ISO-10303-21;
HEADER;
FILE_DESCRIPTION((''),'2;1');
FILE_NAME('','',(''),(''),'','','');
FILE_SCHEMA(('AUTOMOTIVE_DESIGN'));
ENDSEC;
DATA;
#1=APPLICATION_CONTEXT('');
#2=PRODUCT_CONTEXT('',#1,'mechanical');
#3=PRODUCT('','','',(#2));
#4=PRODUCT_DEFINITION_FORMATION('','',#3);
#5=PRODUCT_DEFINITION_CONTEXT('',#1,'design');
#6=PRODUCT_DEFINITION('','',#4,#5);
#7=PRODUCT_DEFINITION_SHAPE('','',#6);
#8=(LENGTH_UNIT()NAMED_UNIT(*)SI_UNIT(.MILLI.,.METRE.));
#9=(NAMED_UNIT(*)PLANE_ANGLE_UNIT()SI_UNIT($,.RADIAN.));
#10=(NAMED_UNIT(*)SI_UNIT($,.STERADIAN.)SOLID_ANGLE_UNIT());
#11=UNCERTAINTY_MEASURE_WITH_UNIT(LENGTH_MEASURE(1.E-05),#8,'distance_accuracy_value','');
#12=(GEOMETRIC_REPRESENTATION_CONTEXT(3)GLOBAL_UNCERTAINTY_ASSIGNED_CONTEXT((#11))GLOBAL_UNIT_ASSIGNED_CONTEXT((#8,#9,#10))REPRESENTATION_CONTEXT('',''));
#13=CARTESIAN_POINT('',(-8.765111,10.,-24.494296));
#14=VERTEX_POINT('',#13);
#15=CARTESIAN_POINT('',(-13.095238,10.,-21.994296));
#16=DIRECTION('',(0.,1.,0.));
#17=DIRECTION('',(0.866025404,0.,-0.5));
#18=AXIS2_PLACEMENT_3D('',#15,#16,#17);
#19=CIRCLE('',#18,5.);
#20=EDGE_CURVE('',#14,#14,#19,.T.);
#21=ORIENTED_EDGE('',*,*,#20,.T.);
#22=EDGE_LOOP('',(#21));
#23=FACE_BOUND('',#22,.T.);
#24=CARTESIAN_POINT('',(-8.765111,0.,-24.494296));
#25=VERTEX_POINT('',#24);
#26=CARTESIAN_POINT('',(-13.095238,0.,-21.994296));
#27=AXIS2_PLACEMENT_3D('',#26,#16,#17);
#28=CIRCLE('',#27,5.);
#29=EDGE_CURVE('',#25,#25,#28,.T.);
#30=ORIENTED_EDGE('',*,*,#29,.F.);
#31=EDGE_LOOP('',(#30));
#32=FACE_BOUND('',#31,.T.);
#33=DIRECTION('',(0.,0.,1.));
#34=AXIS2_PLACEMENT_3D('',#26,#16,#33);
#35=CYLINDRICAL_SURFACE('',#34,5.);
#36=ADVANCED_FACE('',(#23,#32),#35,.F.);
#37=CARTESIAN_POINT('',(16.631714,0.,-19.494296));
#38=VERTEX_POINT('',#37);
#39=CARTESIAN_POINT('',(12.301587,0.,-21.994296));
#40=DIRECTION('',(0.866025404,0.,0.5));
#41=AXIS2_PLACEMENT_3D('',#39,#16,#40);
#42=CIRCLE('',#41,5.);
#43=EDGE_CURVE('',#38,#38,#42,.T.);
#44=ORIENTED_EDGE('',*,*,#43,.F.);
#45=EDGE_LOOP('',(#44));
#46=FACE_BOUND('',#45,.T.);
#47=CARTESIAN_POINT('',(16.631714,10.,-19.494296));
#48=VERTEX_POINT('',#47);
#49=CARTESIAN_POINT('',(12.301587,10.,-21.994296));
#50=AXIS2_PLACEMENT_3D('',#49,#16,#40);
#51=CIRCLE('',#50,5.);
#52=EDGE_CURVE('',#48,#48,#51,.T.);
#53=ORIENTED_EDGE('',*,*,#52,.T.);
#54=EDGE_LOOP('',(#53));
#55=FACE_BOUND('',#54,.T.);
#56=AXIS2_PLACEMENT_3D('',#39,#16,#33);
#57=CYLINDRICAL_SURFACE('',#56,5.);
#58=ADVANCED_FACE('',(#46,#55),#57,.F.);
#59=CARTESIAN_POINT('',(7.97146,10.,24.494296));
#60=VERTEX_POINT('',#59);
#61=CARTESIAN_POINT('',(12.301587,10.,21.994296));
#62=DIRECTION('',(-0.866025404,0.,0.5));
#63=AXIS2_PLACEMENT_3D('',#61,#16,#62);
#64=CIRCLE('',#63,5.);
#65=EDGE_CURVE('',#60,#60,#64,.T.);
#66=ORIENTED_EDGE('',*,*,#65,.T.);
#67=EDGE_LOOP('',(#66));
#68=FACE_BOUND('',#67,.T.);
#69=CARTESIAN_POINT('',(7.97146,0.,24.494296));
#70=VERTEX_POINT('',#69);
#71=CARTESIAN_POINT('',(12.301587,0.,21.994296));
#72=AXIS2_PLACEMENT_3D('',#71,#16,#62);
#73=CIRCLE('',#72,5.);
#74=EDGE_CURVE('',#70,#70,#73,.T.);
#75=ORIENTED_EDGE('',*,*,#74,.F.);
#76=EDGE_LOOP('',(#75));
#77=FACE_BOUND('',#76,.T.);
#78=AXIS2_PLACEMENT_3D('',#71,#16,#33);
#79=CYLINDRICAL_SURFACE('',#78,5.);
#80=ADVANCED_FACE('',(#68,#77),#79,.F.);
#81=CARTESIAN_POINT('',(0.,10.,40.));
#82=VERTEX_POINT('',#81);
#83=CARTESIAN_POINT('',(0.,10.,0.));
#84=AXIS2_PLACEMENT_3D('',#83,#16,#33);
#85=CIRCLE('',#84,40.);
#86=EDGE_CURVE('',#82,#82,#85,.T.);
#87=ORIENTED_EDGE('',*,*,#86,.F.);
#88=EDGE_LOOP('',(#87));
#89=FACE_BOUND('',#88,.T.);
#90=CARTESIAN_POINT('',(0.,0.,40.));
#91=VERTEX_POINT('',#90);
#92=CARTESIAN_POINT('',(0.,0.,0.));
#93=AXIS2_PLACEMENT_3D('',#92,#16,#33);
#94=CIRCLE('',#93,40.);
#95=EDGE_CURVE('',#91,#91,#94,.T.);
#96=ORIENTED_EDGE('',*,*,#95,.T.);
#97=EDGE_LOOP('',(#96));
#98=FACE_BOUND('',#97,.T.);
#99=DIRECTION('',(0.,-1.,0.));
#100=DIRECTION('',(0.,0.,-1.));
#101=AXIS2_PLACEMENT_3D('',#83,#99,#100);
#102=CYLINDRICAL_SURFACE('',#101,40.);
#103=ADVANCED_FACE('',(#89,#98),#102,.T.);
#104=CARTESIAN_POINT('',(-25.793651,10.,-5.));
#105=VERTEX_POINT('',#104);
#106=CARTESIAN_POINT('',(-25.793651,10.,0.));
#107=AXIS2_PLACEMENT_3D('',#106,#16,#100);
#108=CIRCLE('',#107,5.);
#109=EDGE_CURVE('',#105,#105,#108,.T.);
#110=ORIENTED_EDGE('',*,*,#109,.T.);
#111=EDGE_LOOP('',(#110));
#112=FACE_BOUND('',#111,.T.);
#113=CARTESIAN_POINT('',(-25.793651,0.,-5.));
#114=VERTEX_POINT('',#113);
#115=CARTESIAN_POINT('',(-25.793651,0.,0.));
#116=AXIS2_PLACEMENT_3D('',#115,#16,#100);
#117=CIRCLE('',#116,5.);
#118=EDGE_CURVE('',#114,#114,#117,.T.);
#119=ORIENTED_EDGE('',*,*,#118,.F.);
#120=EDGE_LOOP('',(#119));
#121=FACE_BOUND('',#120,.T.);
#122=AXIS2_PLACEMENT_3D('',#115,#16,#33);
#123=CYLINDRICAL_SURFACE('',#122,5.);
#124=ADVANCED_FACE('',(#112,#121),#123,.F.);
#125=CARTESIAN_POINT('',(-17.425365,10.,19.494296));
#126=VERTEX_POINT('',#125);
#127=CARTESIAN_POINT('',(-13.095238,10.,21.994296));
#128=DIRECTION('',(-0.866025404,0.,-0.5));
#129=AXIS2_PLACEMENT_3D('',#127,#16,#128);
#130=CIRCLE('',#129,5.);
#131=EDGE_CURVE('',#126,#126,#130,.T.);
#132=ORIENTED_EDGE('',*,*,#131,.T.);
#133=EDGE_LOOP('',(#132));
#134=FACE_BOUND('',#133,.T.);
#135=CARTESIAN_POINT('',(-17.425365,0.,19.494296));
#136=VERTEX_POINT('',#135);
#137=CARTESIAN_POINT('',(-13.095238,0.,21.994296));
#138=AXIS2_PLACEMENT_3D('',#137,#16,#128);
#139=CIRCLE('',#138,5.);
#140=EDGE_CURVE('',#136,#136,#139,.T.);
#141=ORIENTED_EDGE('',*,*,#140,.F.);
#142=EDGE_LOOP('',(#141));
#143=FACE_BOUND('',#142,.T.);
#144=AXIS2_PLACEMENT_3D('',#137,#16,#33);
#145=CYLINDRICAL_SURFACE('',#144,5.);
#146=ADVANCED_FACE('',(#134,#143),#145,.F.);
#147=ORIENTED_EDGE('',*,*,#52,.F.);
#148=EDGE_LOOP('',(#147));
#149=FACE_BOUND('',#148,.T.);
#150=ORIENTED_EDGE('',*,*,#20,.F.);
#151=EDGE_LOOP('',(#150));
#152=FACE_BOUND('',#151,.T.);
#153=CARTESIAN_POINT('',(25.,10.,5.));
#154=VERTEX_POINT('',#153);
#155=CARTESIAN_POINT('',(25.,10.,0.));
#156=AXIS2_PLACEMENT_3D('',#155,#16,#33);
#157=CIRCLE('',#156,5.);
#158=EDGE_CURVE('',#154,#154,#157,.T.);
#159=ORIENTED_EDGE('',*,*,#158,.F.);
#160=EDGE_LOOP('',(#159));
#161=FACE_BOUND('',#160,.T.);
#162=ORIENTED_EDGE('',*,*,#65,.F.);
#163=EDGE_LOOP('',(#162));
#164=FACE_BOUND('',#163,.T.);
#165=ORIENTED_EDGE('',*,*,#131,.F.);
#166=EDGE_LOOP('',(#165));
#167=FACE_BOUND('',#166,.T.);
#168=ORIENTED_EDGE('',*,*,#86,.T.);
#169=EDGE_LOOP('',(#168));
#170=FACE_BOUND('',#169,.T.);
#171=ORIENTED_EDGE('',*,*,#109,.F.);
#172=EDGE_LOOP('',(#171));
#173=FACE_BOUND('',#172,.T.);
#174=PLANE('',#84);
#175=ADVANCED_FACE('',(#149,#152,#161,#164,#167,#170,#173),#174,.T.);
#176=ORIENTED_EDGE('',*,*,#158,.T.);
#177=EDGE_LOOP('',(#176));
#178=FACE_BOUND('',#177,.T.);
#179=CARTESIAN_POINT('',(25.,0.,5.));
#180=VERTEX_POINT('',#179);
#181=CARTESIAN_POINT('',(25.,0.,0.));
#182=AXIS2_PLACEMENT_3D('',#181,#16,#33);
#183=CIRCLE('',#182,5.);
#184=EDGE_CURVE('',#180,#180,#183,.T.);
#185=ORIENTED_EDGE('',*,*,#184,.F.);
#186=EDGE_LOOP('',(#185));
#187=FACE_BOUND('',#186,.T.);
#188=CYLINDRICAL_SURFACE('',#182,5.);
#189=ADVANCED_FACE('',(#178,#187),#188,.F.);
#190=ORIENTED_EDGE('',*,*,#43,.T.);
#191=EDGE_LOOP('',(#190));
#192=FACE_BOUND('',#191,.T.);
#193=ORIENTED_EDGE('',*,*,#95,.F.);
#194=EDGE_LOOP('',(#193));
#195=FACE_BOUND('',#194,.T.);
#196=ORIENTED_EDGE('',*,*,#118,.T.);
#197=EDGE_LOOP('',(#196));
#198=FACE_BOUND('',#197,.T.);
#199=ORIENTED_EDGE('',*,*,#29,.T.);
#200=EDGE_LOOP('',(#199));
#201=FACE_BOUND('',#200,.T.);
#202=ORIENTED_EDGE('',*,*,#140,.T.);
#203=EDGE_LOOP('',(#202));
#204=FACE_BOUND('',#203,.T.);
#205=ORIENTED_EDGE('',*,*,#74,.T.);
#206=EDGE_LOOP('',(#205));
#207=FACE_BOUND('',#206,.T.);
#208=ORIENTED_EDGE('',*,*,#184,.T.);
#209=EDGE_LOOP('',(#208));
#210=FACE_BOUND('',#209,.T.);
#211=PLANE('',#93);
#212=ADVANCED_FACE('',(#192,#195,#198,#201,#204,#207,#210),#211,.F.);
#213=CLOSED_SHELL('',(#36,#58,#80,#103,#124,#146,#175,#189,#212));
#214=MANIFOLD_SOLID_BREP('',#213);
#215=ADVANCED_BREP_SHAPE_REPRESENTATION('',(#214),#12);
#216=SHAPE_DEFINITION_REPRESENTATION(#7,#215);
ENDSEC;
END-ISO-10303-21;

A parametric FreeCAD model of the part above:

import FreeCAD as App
import Part
import Sketcher
from FreeCAD import Vector

doc = App.newDocument("Part")
body = doc.addObject("PartDesign::Body", "Body")

sketch1 = doc.addObject("Sketcher::SketchObject", "Sketch")
body.addObject(sketch1)
sketch1.AttachmentSupport = (doc.XZ_Plane, [""])
sketch1.MapMode = "FlatFace"
sketch1.addGeometry(Part.Circle(Vector(0, 0, 0), Vector(0, 0, 1), 40), False)
sketch1.addConstraint([
    Sketcher.Constraint("Coincident", 0, 3, -1, 1),
    Sketcher.Constraint("Diameter", 0, 80.0),
])
pad1 = doc.addObject("PartDesign::Pad", "Pad")
body.addObject(pad1)
pad1.Profile = sketch1
pad1.Length = 10
pad1.Reversed = True

sketch2 = doc.addObject("Sketcher::SketchObject", "Sketch001")
body.addObject(sketch2)
sketch2.AttachmentSupport = (doc.XZ_Plane, [""])
sketch2.MapMode = "FlatFace"
sketch2.AttachmentOffset = App.Placement(Vector(0, 0, -10), App.Rotation())
sketch2.addGeometry(Part.Circle(Vector(25, 0, 0), Vector(0, 0, 1), 5), False)
sketch2.addConstraint([
    Sketcher.Constraint("PointOnObject", 0, 3, -1),
    Sketcher.Constraint("Diameter", 0, 10.0),
    Sketcher.Constraint("DistanceX", -1, 1, 0, 3, 25.0),
])
pocket1 = doc.addObject("PartDesign::Pocket", "Pocket")
body.addObject(pocket1)
pocket1.Profile = sketch2
pocket1.Type = "ThroughAll"
pocket1.Reversed = True
doc.recompute()

datumline = doc.addObject("PartDesign::Line", "DatumLine")
body.addObject(datumline)
datumline.Placement = App.Placement(Vector(-0.396825, 0, 0), App.Rotation(Vector(0, 0, 1), Vector(0, 1, 0)))
polarpattern = doc.addObject("PartDesign::PolarPattern", "PolarPattern")
body.addObject(polarpattern)
polarpattern.Originals = [pocket1]
polarpattern.Axis = (datumline, [""])
polarpattern.Angle = 360
polarpattern.Occurrences = 6
body.Tip = polarpattern

doc.recompute()
